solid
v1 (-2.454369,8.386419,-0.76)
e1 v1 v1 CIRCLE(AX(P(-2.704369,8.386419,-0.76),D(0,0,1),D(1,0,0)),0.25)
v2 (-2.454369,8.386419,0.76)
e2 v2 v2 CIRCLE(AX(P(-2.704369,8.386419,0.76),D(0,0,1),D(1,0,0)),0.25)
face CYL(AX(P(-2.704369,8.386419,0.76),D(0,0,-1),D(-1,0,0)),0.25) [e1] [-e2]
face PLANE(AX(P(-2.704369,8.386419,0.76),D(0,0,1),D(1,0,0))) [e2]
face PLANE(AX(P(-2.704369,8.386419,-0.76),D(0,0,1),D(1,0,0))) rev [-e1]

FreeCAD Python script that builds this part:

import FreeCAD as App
import Part
import Sketcher
from FreeCAD import Vector

doc = App.newDocument("Part")
body = doc.addObject("PartDesign::Body", "Body")

# Sketch on XY plane
sketch1 = body.newObject("Sketcher::SketchObject", "Sketch")
sketch1.AttachmentSupport = (doc.getObject("XY_Plane"), [""])
sketch1.MapMode = "FlatFace"
sketch1.addGeometry(Part.Circle(Vector(-2.704369, 8.386419, 0), Vector(0, 0, 1), 0.25), False)
sketch1.addConstraint([
    Sketcher.Constraint("Diameter", 0, 0.5),
    Sketcher.Constraint("DistanceX", 0, 3, -1, 1, 2.704369),
    Sketcher.Constraint("DistanceY", -1, 1, 0, 3, 8.386419),
])
pad1 = body.newObject("PartDesign::Pad", "Pad")
pad1.Profile = sketch1
pad1.Length = 1.52
pad1.Midplane = True

doc.recompute()
